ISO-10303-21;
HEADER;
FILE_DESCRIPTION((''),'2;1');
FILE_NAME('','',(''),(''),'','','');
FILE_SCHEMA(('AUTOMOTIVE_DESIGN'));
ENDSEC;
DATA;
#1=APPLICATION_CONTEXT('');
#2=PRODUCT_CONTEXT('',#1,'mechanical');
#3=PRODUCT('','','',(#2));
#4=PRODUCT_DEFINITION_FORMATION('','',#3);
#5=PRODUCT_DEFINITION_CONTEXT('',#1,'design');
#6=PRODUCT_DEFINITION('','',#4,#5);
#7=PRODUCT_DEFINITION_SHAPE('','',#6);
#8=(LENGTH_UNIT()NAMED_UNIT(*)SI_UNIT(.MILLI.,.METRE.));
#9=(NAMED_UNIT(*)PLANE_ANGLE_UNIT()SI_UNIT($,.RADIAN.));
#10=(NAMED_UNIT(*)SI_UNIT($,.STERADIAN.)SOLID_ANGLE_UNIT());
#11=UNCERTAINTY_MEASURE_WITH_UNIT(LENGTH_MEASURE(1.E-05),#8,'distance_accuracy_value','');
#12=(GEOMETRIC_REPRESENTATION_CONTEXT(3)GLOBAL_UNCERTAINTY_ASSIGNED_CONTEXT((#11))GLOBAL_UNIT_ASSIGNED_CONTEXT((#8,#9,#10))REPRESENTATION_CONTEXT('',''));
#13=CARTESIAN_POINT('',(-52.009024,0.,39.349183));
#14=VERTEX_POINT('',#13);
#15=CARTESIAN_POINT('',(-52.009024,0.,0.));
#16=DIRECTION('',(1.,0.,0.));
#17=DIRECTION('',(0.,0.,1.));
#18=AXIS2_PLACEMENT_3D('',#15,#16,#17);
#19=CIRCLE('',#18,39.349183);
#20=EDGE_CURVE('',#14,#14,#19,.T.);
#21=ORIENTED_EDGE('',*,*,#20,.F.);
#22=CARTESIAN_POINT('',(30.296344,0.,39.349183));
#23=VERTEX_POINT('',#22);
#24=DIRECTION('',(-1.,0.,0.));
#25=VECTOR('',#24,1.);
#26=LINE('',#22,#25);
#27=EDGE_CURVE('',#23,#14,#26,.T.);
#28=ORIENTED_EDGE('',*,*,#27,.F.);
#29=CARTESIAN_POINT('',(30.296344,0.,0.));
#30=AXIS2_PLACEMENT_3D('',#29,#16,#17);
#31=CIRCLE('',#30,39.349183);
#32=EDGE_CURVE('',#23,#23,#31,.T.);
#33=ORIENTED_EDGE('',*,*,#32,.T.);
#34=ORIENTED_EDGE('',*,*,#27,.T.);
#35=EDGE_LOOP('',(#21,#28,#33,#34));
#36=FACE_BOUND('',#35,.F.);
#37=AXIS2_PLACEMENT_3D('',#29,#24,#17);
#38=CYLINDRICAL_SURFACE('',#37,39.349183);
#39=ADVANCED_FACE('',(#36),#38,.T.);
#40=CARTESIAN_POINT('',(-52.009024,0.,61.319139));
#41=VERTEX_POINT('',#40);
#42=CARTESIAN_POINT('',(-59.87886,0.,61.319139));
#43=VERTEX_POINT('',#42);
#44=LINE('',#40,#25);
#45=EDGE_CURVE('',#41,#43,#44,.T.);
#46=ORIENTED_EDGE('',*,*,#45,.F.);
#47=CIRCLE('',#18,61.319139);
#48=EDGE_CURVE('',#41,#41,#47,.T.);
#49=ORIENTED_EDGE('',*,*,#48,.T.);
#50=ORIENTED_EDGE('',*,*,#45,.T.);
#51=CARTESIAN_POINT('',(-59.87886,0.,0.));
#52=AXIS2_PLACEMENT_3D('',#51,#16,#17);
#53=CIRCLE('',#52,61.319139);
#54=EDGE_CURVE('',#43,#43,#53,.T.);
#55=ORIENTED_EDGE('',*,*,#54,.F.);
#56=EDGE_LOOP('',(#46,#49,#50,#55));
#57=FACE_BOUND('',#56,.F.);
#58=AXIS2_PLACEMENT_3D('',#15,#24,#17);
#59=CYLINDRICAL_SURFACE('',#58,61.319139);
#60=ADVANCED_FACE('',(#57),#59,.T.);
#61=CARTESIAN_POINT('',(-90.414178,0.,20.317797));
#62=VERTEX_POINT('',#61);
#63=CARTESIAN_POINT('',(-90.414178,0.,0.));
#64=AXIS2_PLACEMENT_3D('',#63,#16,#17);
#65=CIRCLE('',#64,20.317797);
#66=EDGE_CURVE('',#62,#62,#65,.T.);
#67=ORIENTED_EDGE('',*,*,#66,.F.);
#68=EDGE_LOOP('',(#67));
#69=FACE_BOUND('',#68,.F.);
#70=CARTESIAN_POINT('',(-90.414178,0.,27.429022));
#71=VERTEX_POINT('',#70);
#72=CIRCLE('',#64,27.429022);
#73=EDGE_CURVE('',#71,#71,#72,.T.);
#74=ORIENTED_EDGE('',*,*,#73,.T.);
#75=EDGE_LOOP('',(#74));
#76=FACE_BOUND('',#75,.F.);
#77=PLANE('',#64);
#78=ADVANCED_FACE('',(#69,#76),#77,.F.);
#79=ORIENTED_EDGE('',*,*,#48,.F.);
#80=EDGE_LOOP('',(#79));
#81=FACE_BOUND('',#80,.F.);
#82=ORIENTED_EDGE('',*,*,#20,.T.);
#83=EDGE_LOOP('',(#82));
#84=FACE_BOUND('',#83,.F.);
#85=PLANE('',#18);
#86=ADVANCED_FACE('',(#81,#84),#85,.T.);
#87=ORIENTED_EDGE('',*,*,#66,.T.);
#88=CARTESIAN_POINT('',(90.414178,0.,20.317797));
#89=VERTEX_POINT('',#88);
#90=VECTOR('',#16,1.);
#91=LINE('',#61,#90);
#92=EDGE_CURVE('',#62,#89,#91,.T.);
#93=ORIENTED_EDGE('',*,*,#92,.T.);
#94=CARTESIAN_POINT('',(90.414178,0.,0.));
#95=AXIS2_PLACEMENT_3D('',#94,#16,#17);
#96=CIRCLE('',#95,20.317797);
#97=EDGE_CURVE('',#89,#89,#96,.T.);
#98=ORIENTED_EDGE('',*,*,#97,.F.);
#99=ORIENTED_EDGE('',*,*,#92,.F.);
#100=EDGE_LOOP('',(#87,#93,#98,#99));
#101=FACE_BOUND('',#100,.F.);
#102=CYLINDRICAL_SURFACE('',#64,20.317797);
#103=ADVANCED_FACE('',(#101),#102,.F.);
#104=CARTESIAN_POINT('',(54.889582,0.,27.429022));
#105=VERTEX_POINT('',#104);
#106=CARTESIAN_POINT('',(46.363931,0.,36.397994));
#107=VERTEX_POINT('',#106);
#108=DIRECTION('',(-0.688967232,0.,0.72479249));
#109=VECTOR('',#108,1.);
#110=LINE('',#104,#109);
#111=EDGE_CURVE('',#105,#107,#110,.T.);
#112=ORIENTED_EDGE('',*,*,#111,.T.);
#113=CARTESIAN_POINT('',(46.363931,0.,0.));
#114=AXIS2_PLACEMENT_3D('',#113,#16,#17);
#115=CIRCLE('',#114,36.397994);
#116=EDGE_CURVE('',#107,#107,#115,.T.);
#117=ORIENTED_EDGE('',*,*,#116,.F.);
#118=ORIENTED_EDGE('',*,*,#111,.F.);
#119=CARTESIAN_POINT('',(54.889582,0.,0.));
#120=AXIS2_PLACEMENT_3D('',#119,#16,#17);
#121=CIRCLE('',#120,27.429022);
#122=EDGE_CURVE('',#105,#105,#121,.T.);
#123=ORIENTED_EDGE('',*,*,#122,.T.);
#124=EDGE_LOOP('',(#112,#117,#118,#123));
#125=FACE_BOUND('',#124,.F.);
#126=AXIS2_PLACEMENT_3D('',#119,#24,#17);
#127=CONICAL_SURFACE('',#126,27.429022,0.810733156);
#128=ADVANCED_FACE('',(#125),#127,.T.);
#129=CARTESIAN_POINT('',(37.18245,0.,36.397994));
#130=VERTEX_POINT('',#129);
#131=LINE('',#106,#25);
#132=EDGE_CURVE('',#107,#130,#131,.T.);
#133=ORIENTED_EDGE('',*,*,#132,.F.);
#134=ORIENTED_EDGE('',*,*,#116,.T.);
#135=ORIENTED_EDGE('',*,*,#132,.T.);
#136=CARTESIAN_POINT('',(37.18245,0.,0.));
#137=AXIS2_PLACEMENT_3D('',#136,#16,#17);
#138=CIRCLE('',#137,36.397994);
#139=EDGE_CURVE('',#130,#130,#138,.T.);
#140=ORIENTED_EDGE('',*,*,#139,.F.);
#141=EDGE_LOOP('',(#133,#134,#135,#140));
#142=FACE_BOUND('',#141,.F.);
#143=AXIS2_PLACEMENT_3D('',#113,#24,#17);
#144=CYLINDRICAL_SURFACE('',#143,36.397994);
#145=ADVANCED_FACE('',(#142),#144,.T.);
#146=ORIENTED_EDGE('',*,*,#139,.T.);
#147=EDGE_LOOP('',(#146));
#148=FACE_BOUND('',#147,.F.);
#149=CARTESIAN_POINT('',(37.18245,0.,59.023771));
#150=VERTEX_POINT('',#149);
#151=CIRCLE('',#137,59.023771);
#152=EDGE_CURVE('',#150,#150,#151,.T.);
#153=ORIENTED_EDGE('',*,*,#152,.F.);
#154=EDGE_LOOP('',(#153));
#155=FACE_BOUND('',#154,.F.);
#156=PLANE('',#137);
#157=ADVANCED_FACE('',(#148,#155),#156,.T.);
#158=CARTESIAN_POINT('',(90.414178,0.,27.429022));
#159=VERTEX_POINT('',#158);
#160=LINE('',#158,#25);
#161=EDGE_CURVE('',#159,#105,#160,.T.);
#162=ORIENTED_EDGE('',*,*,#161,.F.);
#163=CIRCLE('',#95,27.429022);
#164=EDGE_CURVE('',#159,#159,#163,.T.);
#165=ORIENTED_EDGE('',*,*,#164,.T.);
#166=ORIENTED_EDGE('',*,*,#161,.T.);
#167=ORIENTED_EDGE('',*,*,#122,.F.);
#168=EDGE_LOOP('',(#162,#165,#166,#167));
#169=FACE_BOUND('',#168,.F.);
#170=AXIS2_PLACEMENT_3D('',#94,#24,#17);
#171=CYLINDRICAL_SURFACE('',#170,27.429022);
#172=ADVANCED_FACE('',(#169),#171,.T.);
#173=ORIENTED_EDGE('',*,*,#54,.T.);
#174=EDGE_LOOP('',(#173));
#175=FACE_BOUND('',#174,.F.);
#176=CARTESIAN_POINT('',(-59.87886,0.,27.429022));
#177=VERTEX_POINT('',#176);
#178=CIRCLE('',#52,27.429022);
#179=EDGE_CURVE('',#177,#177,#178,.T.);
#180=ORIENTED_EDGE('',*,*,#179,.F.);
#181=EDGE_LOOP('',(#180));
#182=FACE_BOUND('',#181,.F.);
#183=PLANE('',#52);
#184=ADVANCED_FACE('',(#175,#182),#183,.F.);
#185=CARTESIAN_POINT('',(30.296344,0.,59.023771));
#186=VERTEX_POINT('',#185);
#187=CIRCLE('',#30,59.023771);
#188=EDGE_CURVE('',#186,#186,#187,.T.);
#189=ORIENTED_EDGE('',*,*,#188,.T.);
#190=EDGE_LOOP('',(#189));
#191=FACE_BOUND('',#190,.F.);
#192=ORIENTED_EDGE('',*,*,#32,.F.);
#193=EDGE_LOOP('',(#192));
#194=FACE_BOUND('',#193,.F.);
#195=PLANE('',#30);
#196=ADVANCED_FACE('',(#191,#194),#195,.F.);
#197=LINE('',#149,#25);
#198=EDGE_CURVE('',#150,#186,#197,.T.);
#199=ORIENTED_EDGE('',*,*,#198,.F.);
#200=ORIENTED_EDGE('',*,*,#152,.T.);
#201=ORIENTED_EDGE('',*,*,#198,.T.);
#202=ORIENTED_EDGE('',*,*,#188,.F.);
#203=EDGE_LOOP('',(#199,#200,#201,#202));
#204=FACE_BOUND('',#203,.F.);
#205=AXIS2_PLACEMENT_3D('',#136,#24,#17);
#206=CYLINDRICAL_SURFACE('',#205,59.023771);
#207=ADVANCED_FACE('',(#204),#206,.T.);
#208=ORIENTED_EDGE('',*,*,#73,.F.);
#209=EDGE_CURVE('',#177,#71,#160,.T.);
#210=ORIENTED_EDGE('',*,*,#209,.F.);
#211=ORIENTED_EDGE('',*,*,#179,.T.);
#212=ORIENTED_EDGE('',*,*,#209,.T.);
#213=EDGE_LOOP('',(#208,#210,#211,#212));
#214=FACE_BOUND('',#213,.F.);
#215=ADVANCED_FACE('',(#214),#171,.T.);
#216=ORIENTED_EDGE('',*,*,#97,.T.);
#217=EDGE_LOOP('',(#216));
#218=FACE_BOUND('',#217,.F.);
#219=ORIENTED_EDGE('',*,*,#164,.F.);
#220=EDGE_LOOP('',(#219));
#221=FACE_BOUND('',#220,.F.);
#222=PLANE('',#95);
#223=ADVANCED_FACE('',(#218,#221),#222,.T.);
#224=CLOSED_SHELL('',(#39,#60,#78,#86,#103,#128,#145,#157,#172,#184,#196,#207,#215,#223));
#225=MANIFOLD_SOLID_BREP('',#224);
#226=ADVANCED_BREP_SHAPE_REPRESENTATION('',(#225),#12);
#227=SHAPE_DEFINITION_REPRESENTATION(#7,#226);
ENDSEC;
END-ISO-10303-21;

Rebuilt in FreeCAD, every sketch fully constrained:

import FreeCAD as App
import Part
import Sketcher
Q = App.Units.Quantity

doc = App.newDocument("Part")
body = doc.addObject("PartDesign::Body", "Body")

# Sketch on XZ plane
sketch1 = doc.addObject("Sketcher::SketchObject", "Sketch")
body.addObject(sketch1)
sketch1.AttachmentSupport = (doc.XZ_Plane, [""])
sketch1.MapMode = "FlatFace"
sketch1.addGeometry(Part.LineSegment(App.Vector(-90, 27, 0), App.Vector(-90, 20, 0)), False)
sketch1.addGeometry(Part.LineSegment(App.Vector(-90, 20, 0), App.Vector(90, 20, 0)), False)
sketch1.addGeometry(Part.LineSegment(App.Vector(90, 20, 0), App.Vector(90, 27, 0)), False)
sketch1.addGeometry(Part.LineSegment(App.Vector(90, 27, 0), App.Vector(55, 27, 0)), False)
sketch1.addGeometry(Part.LineSegment(App.Vector(55, 27, 0), App.Vector(46, 36, 0)), False)
sketch1.addGeometry(Part.LineSegment(App.Vector(46, 36, 0), App.Vector(37, 36, 0)), False)
sketch1.addGeometry(Part.LineSegment(App.Vector(37, 36, 0), App.Vector(37, 59, 0)), False)
sketch1.addGeometry(Part.LineSegment(App.Vector(37, 59, 0), App.Vector(30, 59, 0)), False)
sketch1.addGeometry(Part.LineSegment(App.Vector(30, 59, 0), App.Vector(30, 39, 0)), False)
sketch1.addGeometry(Part.LineSegment(App.Vector(30, 39, 0), App.Vector(-52, 39, 0)), False)
sketch1.addGeometry(Part.LineSegment(App.Vector(-52, 39, 0), App.Vector(-52, 61, 0)), False)
sketch1.addGeometry(Part.LineSegment(App.Vector(-52, 61, 0), App.Vector(-60, 61, 0)), False)
sketch1.addGeometry(Part.LineSegment(App.Vector(-60, 61, 0), App.Vector(-60, 27, 0)), False)
sketch1.addGeometry(Part.LineSegment(App.Vector(-60, 27, 0), App.Vector(-90, 27, 0)), False)
sketch1.addConstraint(Sketcher.Constraint("Coincident", 0, 2, 1, 1))
sketch1.addConstraint(Sketcher.Constraint("Coincident", 1, 2, 2, 1))
sketch1.addConstraint(Sketcher.Constraint("Coincident", 2, 2, 3, 1))
sketch1.addConstraint(Sketcher.Constraint("Coincident", 3, 2, 4, 1))
sketch1.addConstraint(Sketcher.Constraint("Coincident", 4, 2, 5, 1))
sketch1.addConstraint(Sketcher.Constraint("Coincident", 5, 2, 6, 1))
sketch1.addConstraint(Sketcher.Constraint("Coincident", 6, 2, 7, 1))
sketch1.addConstraint(Sketcher.Constraint("Coincident", 7, 2, 8, 1))
sketch1.addConstraint(Sketcher.Constraint("Coincident", 8, 2, 9, 1))
sketch1.addConstraint(Sketcher.Constraint("Coincident", 9, 2, 10, 1))
sketch1.addConstraint(Sketcher.Constraint("Coincident", 10, 2, 11, 1))
sketch1.addConstraint(Sketcher.Constraint("Coincident", 11, 2, 12, 1))
sketch1.addConstraint(Sketcher.Constraint("Coincident", 12, 2, 13, 1))
sketch1.addConstraint(Sketcher.Constraint("Coincident", 13, 2, 0, 1))
sketch1.addConstraint(Sketcher.Constraint("Vertical", 0))
sketch1.addConstraint(Sketcher.Constraint("Horizontal", 1))
sketch1.addConstraint(Sketcher.Constraint("Vertical", 2))
sketch1.addConstraint(Sketcher.Constraint("Horizontal", 3))
sketch1.addConstraint(Sketcher.Constraint("Horizontal", 5))
sketch1.addConstraint(Sketcher.Constraint("Vertical", 6))
sketch1.addConstraint(Sketcher.Constraint("Horizontal", 7))
sketch1.addConstraint(Sketcher.Constraint("Vertical", 8))
sketch1.addConstraint(Sketcher.Constraint("Horizontal", 9))
sketch1.addConstraint(Sketcher.Constraint("Vertical", 10))
sketch1.addConstraint(Sketcher.Constraint("Horizontal", 11))
sketch1.addConstraint(Sketcher.Constraint("Vertical", 12))
sketch1.addConstraint(Sketcher.Constraint("Horizontal", 13))
sketch1.addConstraint(Sketcher.Constraint("Symmetric", 2, 2, 13, 2, -2))
sketch1.addConstraint(Sketcher.Constraint("DistanceX", 5, 2, 5, 1, Q("9.181481 mm")))
sketch1.addConstraint(Sketcher.Constraint("DistanceX", 9, 2, 9, 1, Q("82.305368 mm")))
sketch1.addConstraint(Sketcher.Constraint("DistanceX", 13, 2, 13, 1, Q("30.535318 mm")))
sketch1.addConstraint(Sketcher.Constraint("DistanceY", 8, 2, 8, 1, Q("19.674588 mm")))
sketch1.addConstraint(Sketcher.Constraint("DistanceX", 1, 1, 1, 2, Q("180.828356 mm")))
sketch1.addConstraint(Sketcher.Constraint("DistanceX", 3, 2, 3, 1, Q("35.524596 mm")))
sketch1.addConstraint(Sketcher.Constraint("DistanceX", 7, 2, 7, 1, Q("6.886106 mm")))
sketch1.addConstraint(Sketcher.Constraint("DistanceX", 11, 2, 11, 1, Q("7.869836 mm")))
sketch1.addConstraint(Sketcher.Constraint("DistanceY", 0, 2, 0, 1, Q("7.111225 mm")))
sketch1.addConstraint(Sketcher.Constraint("DistanceY", 6, 1, 6, 2, Q("22.625777 mm")))
sketch1.addConstraint(Sketcher.Constraint("DistanceY", 10, 1, 10, 2, Q("21.969956 mm")))
sketch1.addConstraint(Sketcher.Constraint("DistanceY", 12, 2, 12, 1, Q("33.890117 mm")))
sketch1.addConstraint(Sketcher.Constraint("DistanceY", -1, 1, 2, 2, Q("27.429022 mm")))
revolution = doc.addObject("PartDesign::Revolution", "Revolution")
body.addObject(revolution)
revolution.Profile = sketch1
revolution.ReferenceAxis = (sketch1, ["H_Axis"])
revolution.Angle = 360

doc.recompute()
